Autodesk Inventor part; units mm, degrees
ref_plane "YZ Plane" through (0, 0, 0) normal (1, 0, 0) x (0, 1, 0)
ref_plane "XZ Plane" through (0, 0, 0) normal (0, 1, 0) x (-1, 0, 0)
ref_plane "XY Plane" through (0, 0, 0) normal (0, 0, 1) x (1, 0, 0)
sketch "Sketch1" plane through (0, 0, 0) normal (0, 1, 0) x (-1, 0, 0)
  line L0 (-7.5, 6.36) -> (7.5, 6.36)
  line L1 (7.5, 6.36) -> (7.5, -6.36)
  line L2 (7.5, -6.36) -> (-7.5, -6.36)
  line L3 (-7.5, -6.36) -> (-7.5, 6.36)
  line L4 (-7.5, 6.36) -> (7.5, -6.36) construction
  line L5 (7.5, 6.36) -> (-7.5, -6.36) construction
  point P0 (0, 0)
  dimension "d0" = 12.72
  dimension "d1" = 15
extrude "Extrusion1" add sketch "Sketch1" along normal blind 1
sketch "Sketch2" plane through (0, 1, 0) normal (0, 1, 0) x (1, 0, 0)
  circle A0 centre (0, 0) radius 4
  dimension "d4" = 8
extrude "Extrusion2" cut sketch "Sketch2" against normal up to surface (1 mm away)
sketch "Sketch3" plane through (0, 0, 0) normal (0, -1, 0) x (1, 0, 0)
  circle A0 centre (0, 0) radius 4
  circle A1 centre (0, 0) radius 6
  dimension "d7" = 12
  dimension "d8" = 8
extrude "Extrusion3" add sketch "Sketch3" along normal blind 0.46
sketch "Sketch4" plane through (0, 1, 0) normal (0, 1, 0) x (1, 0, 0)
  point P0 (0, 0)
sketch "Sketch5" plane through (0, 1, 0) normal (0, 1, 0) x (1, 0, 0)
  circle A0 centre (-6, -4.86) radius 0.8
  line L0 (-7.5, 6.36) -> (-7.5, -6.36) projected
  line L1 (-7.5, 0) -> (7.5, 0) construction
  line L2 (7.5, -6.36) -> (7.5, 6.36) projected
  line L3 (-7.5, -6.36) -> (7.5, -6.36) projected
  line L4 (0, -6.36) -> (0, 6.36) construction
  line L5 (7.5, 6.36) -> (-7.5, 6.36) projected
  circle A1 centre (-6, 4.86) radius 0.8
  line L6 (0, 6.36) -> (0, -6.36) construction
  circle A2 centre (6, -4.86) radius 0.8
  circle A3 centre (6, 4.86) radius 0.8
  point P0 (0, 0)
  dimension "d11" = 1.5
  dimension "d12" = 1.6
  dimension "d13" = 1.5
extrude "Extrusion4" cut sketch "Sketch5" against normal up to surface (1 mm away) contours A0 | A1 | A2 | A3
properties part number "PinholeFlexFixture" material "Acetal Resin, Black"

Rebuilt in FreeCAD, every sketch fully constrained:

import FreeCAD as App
import Part
import Sketcher
from FreeCAD import Vector

doc = App.newDocument("Part")
body = doc.addObject("PartDesign::Body", "Body")

sketch1 = body.newObject("Sketcher::SketchObject", "Sketch")
sketch1.AttachmentSupport = (doc.getObject("XZ_Plane"), [""])
sketch1.MapMode = "FlatFace"
sketch1.addGeometry(Part.LineSegment(Vector(-8, 6, 0), Vector(8, 6, 0)), False)
sketch1.addGeometry(Part.LineSegment(Vector(8, 6, 0), Vector(8, -6, 0)), False)
sketch1.addGeometry(Part.LineSegment(Vector(8, -6, 0), Vector(-8, -6, 0)), False)
sketch1.addGeometry(Part.LineSegment(Vector(-8, -6, 0), Vector(-8, 6, 0)), False)
sketch1.addConstraint(Sketcher.Constraint("Coincident", 0, 2, 1, 1))
sketch1.addConstraint(Sketcher.Constraint("Coincident", 1, 2, 2, 1))
sketch1.addConstraint(Sketcher.Constraint("Coincident", 2, 2, 3, 1))
sketch1.addConstraint(Sketcher.Constraint("Coincident", 3, 2, 0, 1))
sketch1.addConstraint(Sketcher.Constraint("Horizontal", 0))
sketch1.addConstraint(Sketcher.Constraint("Vertical", 1))
sketch1.addConstraint(Sketcher.Constraint("Horizontal", 2))
sketch1.addConstraint(Sketcher.Constraint("Vertical", 3))
sketch1.addConstraint(Sketcher.Constraint("Symmetric", 0, 2, 2, 2, -1, 1))
sketch1.addConstraint(Sketcher.Constraint("DistanceX", 0, 1, 0, 2, 15.0))
sketch1.addConstraint(Sketcher.Constraint("DistanceY", 1, 2, 1, 1, 12.72))
pad1 = body.newObject("PartDesign::Pad", "Pad")
pad1.Profile = sketch1
pad1.Length = 1
pad1.Reversed = True

sketch2 = body.newObject("Sketcher::SketchObject", "Sketch001")
sketch2.AttachmentSupport = (doc.getObject("XZ_Plane"), [""])
sketch2.MapMode = "FlatFace"
sketch2.AttachmentOffset = App.Placement(Vector(0, 0, -1), App.Rotation())
sketch2.addGeometry(Part.Circle(Vector(0, 0, 0), Vector(0, 0, 1), 4), False)
sketch2.addConstraint(Sketcher.Constraint("Coincident", 0, 3, -1, 1))
sketch2.addConstraint(Sketcher.Constraint("Diameter", 0, 8.0))
pocket1 = body.newObject("PartDesign::Pocket", "Pocket")
pocket1.Profile = sketch2
pocket1.Length = 1
pocket1.Reversed = True

sketch3 = body.newObject("Sketcher::SketchObject", "Sketch002")
sketch3.AttachmentSupport = (doc.getObject("XZ_Plane"), [""])
sketch3.MapMode = "FlatFace"
sketch3.addGeometry(Part.Circle(Vector(0, 0, 0), Vector(0, 0, 1), 6), False)
sketch3.addGeometry(Part.Circle(Vector(0, 0, 0), Vector(0, 0, 1), 4), False)
sketch3.addConstraint(Sketcher.Constraint("Coincident", 0, 3, -1, 1))
sketch3.addConstraint(Sketcher.Constraint("Coincident", 1, 3, -1, 1))
sketch3.addConstraint(Sketcher.Constraint("Diameter", 0, 12.0))
sketch3.addConstraint(Sketcher.Constraint("Diameter", 1, 8.0))
pad2 = body.newObject("PartDesign::Pad", "Pad001")
pad2.Profile = sketch3
pad2.Length = 0.46

sketch4 = body.newObject("Sketcher::SketchObject", "Sketch003")
sketch4.AttachmentSupport = (doc.getObject("XZ_Plane"), [""])
sketch4.MapMode = "FlatFace"
sketch4.AttachmentOffset = App.Placement(Vector(0, 0, -1), App.Rotation())
sketch4.addGeometry(Part.Circle(Vector(-6, 4.9, 0), Vector(0, 0, 1), 0.8), False)
sketch4.addGeometry(Part.Circle(Vector(-6, -4.9, 0), Vector(0, 0, 1), 0.8), False)
sketch4.addGeometry(Part.Circle(Vector(6, 4.9, 0), Vector(0, 0, 1), 0.8), False)
sketch4.addGeometry(Part.Circle(Vector(6, -4.9, 0), Vector(0, 0, 1), 0.8), False)
sketch4.addConstraint(Sketcher.Constraint("Equal", 0, 1))
sketch4.addConstraint(Sketcher.Constraint("Equal", 1, 2))
sketch4.addConstraint(Sketcher.Constraint("Equal", 2, 3))
sketch4.addConstraint(Sketcher.Constraint("Symmetric", 1, 3, 2, 3, -1, 1))
sketch4.addConstraint(Sketcher.Constraint("Symmetric", 0, 3, 3, 3, -1, 1))
sketch4.addConstraint(Sketcher.Constraint("Symmetric", 0, 3, 2, 3, -2))
sketch4.addConstraint(Sketcher.Constraint("Diameter", 0, 1.6))
sketch4.addConstraint(Sketcher.Constraint("DistanceX", 0, 3, -1, 1, 6.0))
sketch4.addConstraint(Sketcher.Constraint("DistanceY", -1, 1, 0, 3, 4.86))
pocket2 = body.newObject("PartDesign::Pocket", "Pocket001")
pocket2.Profile = sketch4
pocket2.Length = 1
pocket2.Reversed = True

doc.recompute()
